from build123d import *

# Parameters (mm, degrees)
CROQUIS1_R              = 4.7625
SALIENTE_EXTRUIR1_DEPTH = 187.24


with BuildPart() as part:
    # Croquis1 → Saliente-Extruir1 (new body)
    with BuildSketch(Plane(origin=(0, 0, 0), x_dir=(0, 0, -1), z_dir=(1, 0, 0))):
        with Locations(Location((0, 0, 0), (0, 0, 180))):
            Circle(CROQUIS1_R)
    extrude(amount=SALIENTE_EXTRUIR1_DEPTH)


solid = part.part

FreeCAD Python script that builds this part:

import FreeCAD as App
import Part
import Sketcher
Q = App.Units.Quantity

doc = App.newDocument("Part")
params = doc.addObject("Spreadsheet::Sheet", "Params")
for row, (alias, value) in enumerate([
    ("sketch1_diameter", "0.375 in"),
    ("pad1_length", "187.24 mm"),
], start=1):
    params.set(f"A{row}", alias)
    params.set(f"B{row}", "=" + value)
    params.setAlias(f"B{row}", alias)

body = doc.addObject("PartDesign::Body", "Body")

# Sketch on YZ plane
sketch1 = body.newObject("Sketcher::SketchObject", "Sketch")
sketch1.AttachmentSupport = (doc.getObject("YZ_Plane"), [""])
sketch1.MapMode = "FlatFace"
sketch1.addGeometry(Part.Circle(App.Vector(0, 0, 0), App.Vector(0, 0, 1), 4.8), False)
sketch1.addConstraint([
    Sketcher.Constraint("Coincident", 0, 3, -1, 1),
    Sketcher.Constraint("Diameter", 0, Q("0.375 in")),
])
sketch1.setExpression("Constraints[1]", "Params.sketch1_diameter")
pad1 = body.newObject("PartDesign::Pad", "Pad")
pad1.Profile = sketch1
pad1.setExpression("Length", "Params.pad1_length")

doc.recompute()
